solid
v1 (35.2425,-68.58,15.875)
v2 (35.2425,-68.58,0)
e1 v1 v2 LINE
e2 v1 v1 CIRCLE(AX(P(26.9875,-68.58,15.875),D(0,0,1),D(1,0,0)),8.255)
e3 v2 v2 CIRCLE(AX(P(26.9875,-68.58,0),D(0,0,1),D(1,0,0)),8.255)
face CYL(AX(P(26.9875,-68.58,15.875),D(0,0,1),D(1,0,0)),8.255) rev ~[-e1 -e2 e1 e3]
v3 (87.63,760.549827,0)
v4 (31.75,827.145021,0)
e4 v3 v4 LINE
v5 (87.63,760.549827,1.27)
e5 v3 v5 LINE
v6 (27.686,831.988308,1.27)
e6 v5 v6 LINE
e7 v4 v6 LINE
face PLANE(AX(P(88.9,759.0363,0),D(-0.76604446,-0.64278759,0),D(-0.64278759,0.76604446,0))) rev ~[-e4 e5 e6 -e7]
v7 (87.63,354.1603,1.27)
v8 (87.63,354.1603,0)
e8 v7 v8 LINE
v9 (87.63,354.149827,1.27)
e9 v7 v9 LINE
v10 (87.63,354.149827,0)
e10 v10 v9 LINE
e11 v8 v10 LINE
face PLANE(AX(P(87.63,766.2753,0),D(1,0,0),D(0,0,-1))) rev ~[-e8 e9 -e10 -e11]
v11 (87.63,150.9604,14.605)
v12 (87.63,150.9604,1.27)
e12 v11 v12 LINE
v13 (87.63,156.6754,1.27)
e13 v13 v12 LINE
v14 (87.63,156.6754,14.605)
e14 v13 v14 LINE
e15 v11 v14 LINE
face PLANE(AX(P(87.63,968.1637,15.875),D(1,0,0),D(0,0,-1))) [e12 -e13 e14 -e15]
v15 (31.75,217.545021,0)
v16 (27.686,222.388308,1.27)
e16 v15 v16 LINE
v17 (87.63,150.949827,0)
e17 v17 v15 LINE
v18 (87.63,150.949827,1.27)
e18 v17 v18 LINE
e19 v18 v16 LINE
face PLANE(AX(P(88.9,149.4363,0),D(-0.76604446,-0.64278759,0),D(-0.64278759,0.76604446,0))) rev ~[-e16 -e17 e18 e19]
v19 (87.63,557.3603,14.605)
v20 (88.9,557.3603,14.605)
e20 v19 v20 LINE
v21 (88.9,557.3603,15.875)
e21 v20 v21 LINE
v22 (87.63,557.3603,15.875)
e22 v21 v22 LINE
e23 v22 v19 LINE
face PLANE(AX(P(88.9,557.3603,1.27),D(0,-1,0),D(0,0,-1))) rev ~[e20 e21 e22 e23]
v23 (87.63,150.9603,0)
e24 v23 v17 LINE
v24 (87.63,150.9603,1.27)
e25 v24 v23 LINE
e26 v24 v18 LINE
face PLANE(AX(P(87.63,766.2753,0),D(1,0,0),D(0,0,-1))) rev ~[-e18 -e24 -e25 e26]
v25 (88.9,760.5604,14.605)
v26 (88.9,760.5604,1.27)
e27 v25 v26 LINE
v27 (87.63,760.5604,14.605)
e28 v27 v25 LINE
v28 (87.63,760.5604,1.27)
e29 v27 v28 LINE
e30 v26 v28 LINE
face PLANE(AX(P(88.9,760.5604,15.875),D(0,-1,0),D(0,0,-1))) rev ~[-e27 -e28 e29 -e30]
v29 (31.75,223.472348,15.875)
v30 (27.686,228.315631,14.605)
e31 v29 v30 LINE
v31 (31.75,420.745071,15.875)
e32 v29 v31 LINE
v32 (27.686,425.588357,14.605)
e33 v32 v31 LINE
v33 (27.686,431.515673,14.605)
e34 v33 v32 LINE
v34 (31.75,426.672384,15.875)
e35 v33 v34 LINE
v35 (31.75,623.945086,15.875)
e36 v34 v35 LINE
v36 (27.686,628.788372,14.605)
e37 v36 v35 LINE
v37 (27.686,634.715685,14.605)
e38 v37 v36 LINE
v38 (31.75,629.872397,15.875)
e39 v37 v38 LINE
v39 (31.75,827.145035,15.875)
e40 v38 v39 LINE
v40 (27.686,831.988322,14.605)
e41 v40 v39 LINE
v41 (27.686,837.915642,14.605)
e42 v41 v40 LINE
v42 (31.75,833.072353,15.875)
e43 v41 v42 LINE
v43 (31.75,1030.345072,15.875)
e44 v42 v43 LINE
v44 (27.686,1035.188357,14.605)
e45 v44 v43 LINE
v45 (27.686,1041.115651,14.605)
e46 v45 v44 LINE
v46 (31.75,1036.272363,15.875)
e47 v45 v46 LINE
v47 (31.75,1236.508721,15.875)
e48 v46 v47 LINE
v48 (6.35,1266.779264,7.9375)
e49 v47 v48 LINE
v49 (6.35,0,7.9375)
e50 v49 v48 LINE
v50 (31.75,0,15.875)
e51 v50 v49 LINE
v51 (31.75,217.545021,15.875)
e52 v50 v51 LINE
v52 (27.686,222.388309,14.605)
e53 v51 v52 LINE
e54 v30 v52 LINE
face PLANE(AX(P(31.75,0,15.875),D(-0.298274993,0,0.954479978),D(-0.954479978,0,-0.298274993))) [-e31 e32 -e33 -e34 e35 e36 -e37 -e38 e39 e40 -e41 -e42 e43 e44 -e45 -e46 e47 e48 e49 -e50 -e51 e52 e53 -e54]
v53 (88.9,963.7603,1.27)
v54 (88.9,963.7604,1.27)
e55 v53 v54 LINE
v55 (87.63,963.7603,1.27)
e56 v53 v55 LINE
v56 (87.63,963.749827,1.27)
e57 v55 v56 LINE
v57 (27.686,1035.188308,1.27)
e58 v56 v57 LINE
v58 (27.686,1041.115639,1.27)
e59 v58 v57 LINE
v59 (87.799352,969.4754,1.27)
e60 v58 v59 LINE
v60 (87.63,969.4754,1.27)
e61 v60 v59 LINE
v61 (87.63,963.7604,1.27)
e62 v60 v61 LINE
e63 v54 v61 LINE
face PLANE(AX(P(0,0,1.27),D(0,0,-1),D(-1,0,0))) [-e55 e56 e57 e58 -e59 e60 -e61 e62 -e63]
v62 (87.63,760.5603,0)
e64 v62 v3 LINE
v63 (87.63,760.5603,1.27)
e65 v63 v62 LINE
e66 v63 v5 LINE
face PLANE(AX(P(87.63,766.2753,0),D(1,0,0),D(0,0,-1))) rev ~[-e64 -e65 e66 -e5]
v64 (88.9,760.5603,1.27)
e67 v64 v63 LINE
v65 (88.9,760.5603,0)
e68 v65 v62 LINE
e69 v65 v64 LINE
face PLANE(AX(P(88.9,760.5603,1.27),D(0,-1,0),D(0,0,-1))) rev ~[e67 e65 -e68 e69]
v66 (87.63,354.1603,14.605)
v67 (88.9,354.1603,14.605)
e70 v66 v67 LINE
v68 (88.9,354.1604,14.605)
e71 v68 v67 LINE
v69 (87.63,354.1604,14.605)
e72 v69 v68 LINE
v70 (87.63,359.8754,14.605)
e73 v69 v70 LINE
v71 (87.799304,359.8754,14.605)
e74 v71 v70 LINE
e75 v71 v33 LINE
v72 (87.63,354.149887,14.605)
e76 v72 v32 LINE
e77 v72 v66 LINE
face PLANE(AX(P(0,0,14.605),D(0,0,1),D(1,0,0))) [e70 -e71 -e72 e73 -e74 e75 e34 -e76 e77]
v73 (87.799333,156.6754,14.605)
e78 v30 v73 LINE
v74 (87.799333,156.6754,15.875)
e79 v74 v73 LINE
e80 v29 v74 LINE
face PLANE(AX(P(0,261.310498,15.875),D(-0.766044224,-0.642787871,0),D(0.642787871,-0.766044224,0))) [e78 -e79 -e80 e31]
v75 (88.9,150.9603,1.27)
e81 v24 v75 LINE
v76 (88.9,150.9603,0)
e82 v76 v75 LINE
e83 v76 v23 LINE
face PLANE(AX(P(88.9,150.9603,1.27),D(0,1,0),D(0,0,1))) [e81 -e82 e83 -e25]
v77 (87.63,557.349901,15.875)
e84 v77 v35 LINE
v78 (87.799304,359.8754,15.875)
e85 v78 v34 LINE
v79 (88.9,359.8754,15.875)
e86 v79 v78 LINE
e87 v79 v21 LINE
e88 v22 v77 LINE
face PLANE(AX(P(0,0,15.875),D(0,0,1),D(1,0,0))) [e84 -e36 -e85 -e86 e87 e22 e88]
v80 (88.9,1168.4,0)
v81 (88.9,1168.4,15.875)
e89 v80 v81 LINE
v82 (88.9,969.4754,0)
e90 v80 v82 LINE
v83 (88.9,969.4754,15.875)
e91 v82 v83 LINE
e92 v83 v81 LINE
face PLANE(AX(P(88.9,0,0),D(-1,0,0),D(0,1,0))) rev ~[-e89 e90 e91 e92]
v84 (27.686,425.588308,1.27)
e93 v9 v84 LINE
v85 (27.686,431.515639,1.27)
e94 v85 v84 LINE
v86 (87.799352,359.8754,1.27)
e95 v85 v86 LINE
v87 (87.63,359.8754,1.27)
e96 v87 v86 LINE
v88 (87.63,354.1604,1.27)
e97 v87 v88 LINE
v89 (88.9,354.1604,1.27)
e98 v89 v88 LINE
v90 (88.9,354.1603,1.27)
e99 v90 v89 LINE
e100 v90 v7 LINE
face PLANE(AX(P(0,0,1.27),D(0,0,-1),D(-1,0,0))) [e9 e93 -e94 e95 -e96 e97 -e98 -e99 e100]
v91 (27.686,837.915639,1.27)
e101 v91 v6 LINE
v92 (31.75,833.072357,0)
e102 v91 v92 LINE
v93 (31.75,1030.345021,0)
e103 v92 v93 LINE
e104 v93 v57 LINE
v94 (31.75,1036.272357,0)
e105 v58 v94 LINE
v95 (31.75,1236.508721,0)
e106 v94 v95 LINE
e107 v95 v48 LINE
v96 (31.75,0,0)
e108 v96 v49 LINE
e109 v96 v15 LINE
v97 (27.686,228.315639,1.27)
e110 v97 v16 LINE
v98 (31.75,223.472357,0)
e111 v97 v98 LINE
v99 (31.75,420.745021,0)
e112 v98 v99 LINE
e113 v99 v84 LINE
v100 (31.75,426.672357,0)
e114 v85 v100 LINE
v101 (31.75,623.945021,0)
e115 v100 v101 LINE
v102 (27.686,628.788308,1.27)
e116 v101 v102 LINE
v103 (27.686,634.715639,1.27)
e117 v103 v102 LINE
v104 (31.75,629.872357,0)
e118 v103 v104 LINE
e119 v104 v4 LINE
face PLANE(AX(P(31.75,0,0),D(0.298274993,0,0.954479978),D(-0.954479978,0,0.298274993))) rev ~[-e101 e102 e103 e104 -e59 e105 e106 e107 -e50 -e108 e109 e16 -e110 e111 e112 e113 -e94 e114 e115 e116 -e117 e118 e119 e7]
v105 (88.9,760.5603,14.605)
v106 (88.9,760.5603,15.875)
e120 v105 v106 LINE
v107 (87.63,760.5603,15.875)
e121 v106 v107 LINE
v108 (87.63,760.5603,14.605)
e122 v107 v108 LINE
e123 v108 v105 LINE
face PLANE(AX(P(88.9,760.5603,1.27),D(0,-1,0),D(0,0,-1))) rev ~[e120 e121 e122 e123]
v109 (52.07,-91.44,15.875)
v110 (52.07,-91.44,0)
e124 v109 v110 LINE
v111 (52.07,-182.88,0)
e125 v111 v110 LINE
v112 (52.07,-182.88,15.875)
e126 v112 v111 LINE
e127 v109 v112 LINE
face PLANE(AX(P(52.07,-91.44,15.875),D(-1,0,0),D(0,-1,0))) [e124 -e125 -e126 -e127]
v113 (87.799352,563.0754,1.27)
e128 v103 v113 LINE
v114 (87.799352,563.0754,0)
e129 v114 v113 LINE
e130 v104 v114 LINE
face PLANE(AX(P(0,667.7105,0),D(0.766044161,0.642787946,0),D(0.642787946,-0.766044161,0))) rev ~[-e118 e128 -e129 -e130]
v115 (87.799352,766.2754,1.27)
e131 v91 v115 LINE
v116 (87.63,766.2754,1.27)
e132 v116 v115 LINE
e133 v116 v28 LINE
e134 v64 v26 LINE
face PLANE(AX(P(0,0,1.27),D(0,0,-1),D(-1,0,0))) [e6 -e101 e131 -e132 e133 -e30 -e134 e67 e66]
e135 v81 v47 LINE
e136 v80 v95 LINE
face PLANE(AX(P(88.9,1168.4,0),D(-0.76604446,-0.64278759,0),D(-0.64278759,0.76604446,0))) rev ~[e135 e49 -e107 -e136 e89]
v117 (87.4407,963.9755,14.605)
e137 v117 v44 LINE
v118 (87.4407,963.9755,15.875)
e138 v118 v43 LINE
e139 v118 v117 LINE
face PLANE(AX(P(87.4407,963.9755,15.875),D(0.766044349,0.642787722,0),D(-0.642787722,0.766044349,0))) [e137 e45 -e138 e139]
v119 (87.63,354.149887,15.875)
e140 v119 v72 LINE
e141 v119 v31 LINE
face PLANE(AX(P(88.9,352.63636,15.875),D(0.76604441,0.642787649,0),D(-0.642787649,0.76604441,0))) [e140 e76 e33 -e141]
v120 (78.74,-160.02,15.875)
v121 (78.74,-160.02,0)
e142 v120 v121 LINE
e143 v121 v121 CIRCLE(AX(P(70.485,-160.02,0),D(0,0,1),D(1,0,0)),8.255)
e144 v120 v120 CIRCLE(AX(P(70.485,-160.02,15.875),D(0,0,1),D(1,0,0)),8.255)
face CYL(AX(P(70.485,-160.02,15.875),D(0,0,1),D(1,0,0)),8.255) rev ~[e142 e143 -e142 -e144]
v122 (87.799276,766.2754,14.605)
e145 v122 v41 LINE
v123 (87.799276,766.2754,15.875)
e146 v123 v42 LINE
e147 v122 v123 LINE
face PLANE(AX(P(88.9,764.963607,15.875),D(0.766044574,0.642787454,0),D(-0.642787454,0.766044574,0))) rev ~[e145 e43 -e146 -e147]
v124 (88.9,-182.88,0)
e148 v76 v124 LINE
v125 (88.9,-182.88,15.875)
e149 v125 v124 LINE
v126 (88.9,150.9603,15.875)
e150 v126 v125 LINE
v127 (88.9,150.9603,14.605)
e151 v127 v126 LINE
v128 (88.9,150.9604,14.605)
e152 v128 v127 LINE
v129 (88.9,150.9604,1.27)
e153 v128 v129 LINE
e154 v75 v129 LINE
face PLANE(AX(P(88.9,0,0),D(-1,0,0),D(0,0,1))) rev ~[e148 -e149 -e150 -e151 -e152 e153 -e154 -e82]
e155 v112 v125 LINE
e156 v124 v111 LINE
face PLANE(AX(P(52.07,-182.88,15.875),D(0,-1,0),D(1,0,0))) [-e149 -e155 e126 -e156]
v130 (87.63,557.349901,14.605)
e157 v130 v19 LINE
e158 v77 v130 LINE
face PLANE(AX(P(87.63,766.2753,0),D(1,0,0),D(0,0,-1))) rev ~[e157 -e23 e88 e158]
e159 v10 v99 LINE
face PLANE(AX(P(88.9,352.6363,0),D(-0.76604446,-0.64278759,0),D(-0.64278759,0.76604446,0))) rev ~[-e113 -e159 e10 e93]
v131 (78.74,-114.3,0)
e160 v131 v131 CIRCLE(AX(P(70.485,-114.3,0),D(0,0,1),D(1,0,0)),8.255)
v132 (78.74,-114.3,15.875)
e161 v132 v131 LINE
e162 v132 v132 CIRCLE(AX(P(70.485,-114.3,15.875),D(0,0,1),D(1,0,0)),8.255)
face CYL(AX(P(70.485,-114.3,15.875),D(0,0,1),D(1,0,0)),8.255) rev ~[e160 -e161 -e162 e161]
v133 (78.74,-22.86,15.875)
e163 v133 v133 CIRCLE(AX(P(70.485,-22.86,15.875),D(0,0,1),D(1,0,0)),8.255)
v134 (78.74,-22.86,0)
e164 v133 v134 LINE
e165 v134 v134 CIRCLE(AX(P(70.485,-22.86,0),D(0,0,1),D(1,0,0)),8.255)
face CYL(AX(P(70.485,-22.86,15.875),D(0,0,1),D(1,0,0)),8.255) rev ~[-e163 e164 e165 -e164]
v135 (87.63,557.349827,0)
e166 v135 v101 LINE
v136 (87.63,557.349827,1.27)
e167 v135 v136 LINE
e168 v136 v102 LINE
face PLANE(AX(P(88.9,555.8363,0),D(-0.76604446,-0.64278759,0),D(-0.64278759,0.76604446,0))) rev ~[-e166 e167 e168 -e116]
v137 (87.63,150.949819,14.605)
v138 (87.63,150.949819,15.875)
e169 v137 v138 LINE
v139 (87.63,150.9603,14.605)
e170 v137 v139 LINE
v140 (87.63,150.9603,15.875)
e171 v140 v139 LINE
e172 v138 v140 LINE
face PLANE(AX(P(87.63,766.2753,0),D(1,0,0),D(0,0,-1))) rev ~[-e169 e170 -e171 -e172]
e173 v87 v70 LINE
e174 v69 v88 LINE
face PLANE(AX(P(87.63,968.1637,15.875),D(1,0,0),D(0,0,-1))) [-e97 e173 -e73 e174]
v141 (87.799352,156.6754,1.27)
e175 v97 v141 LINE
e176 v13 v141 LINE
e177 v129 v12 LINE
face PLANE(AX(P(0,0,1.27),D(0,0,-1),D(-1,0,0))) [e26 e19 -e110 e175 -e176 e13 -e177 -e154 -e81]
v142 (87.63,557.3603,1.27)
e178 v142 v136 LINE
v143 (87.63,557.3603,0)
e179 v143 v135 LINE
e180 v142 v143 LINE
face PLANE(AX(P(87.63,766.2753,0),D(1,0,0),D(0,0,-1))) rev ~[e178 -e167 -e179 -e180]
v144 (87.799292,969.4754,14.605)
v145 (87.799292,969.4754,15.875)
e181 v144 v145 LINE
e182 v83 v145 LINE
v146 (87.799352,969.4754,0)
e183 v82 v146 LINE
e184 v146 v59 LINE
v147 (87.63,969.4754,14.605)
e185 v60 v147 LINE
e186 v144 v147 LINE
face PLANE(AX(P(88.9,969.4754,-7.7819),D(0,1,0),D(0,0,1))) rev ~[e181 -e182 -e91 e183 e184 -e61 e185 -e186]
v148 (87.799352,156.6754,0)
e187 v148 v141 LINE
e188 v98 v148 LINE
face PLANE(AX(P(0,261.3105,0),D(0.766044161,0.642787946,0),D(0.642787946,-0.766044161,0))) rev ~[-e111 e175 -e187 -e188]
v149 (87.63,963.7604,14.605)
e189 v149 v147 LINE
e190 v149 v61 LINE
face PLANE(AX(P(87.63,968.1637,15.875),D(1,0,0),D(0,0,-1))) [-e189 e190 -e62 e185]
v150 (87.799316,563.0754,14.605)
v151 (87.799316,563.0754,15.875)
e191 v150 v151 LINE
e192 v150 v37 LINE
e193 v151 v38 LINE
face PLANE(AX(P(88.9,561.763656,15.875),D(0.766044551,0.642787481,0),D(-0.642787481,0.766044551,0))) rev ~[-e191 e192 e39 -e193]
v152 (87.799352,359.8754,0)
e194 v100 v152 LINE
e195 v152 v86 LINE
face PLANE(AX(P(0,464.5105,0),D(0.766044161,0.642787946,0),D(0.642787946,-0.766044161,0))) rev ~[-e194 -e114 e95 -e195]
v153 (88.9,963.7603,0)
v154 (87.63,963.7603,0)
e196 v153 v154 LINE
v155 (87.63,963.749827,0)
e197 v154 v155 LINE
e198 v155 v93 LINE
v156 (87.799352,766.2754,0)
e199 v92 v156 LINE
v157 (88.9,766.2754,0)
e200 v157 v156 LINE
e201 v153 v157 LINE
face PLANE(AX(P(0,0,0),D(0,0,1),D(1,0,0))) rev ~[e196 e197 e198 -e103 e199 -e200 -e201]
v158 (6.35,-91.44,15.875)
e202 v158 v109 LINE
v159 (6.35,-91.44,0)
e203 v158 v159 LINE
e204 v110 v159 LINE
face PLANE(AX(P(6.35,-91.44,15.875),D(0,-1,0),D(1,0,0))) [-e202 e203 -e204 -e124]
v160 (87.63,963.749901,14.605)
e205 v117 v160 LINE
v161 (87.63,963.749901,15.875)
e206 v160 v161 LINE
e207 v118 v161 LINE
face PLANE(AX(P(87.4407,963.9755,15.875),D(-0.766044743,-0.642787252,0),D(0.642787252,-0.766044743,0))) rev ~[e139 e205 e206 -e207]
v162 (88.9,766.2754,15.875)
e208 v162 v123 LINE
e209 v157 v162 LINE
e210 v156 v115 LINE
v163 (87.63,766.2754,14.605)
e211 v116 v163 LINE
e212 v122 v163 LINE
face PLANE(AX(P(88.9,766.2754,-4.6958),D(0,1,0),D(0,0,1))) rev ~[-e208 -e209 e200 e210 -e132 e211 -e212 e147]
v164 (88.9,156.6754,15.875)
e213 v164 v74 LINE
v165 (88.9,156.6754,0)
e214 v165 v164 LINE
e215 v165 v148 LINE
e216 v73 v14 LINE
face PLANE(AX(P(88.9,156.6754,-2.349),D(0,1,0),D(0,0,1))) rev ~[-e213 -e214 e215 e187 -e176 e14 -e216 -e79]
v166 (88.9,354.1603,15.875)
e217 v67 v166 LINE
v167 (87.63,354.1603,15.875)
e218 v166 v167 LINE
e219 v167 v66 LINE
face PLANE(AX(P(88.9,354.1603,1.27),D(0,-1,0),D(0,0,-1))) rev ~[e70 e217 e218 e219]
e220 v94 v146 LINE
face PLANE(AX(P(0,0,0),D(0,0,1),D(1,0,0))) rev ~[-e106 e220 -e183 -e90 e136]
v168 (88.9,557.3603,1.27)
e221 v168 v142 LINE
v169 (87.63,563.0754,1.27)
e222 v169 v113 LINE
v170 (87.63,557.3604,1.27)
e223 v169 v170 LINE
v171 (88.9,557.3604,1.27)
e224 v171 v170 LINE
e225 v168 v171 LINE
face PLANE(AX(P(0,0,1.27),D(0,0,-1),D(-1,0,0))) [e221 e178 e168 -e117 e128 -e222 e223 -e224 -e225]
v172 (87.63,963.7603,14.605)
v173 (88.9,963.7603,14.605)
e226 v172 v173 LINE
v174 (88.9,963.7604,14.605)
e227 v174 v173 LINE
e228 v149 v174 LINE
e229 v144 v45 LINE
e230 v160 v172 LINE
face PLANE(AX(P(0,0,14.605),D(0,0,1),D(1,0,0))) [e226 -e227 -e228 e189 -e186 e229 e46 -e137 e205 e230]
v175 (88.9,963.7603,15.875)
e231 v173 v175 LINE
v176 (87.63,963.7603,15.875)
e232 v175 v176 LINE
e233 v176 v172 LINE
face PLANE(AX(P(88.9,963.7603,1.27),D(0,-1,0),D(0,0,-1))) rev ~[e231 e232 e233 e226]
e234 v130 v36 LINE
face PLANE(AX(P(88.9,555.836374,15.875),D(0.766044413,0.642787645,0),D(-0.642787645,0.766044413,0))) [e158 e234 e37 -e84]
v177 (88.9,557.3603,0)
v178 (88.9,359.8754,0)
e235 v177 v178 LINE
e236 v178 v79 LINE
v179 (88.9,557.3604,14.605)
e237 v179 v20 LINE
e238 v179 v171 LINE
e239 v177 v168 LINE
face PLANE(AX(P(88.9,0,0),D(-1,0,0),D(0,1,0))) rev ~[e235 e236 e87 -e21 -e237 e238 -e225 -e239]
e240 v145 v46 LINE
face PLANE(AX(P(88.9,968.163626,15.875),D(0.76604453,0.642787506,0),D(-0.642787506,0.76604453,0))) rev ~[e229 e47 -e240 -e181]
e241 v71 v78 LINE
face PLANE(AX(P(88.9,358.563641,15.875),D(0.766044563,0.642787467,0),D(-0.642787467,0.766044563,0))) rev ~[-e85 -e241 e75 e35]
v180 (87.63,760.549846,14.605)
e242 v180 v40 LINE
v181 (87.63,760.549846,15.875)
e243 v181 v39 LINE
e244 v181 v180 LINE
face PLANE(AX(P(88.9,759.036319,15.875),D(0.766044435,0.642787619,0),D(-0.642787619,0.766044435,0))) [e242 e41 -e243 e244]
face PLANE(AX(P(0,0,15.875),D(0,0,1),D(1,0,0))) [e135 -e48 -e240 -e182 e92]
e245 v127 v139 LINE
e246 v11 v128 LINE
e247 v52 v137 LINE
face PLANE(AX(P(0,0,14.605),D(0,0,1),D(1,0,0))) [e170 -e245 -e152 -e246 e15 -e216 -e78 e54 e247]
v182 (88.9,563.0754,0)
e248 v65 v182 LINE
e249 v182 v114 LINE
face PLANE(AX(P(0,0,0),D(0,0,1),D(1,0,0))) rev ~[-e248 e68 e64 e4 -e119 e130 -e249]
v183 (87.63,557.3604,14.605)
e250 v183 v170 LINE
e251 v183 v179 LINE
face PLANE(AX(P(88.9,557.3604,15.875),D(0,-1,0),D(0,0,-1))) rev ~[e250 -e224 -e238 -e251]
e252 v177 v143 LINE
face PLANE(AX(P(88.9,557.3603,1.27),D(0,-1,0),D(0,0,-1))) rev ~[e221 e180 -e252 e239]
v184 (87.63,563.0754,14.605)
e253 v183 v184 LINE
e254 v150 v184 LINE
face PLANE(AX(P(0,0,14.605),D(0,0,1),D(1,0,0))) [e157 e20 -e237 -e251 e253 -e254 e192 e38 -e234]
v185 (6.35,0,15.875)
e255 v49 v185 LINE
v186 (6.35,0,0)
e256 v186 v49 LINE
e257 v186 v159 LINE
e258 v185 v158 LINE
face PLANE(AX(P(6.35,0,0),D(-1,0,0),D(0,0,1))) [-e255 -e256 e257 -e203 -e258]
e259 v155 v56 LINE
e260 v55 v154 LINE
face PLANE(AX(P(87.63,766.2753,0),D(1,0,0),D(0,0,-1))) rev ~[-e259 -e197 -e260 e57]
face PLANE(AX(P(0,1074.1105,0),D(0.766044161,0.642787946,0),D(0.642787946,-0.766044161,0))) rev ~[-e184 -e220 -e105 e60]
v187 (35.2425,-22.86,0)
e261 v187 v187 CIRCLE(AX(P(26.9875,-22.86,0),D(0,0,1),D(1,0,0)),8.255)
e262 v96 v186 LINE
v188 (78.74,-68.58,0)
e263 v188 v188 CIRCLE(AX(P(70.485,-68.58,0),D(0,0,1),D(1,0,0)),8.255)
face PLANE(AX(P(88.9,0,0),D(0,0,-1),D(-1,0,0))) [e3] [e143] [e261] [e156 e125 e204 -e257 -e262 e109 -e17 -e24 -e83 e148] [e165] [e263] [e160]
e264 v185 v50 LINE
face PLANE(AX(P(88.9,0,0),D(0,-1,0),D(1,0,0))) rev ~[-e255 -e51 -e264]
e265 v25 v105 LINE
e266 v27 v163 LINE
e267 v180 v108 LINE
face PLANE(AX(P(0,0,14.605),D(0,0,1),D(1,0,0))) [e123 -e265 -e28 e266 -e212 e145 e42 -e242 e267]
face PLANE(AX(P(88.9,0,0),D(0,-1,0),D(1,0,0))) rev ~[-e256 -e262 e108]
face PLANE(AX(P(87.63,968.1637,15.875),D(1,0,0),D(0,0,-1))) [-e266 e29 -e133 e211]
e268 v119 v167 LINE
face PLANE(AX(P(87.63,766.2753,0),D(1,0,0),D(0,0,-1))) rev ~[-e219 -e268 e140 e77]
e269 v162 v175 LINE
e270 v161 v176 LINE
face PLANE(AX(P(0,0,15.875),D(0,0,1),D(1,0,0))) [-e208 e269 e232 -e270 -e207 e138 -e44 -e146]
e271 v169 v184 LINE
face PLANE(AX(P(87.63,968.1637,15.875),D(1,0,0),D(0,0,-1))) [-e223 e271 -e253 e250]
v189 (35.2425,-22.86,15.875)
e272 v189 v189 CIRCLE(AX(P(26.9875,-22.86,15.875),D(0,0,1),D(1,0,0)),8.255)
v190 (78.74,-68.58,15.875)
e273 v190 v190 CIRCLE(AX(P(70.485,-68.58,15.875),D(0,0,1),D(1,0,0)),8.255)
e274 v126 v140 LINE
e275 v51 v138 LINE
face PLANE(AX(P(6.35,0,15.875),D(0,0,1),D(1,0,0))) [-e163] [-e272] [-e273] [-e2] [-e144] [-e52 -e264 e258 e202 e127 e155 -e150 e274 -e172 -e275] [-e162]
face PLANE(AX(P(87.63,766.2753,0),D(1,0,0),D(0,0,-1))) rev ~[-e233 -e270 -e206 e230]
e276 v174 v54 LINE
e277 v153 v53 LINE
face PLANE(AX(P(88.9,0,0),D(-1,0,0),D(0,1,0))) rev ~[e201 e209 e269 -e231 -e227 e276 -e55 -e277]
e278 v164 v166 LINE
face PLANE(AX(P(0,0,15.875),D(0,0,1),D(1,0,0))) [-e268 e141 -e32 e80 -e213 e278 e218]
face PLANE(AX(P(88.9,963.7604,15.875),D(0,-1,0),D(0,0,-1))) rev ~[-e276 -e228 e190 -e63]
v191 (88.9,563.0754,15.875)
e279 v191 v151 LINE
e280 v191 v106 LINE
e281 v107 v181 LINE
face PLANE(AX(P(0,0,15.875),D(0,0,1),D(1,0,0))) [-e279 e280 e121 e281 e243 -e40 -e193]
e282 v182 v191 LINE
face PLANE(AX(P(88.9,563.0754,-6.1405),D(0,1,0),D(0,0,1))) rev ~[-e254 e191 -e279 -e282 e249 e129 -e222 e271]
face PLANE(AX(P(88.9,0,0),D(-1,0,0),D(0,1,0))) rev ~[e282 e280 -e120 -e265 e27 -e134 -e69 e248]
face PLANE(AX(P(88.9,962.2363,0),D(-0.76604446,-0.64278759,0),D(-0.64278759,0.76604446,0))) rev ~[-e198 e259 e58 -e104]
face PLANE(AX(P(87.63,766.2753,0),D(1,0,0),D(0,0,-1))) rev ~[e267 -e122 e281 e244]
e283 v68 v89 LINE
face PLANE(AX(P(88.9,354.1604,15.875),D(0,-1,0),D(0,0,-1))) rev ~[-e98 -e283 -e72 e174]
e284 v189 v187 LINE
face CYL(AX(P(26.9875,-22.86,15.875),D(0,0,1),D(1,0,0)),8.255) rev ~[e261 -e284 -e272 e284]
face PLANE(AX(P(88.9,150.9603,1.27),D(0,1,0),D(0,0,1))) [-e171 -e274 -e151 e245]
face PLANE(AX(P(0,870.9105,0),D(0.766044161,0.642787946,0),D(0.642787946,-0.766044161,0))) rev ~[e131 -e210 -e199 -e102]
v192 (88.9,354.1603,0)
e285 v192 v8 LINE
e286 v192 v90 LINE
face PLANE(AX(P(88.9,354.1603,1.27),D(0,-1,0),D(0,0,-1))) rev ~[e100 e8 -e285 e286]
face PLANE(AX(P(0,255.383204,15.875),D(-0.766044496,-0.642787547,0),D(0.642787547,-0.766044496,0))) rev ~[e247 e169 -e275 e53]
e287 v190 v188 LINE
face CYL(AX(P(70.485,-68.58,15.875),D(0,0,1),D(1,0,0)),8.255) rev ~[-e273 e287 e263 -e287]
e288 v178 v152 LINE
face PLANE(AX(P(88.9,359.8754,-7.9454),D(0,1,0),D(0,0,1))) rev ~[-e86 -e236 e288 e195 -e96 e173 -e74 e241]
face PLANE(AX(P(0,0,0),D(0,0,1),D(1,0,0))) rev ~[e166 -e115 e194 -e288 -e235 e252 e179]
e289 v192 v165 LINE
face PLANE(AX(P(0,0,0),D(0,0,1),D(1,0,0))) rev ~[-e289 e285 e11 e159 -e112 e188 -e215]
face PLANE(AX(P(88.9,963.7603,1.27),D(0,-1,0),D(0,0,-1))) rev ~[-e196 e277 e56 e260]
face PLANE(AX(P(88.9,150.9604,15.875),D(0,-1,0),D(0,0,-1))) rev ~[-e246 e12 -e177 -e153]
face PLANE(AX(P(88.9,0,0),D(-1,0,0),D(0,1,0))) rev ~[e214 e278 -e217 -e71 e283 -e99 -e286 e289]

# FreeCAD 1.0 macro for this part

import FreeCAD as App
import Part
import Sketcher
Q = App.Units.Quantity

doc = App.newDocument("Part")
body = doc.addObject("PartDesign::Body", "Body")

sketch1 = body.newObject("Sketcher::SketchObject", "Sketch")
sketch1.AttachmentSupport = (doc.getObject("XY_Plane"), [""])
sketch1.MapMode = "FlatFace"
sketch1.addGeometry([
    Part.LineSegment(App.Vector(0, 0, 0), App.Vector(88.9, 0, 0)),
    Part.LineSegment(App.Vector(88.9, 0, 0), App.Vector(88.9, 1168.4, 0)),
    Part.LineSegment(App.Vector(88.9, 1168.4, 0), App.Vector(0, 1274.3469, 0)),
    Part.LineSegment(App.Vector(0, 1274.3469, 0), App.Vector(0, 0, 0)),
], False)
sketch1.addConstraint([
    Sketcher.Constraint("Coincident", 0, 2, 1, 1),
    Sketcher.Constraint("Coincident", 1, 2, 2, 1),
    Sketcher.Constraint("Coincident", 2, 2, 3, 1),
    Sketcher.Constraint("Coincident", 3, 2, 0, 1),
    Sketcher.Constraint("Horizontal", 0),
    Sketcher.Constraint("Vertical", 1),
    Sketcher.Constraint("Vertical", 3),
    Sketcher.Constraint("Coincident", 3, 2, -1, 1),
    Sketcher.Constraint("DistanceY", 1, 1, 1, 2, Q("46 in")),
    Sketcher.Constraint("DistanceX", 0, 1, 0, 2, Q("3.5 in")),
    Sketcher.Constraint("Angle", 2, Q("130 deg")),
])
pad1 = body.newObject("PartDesign::Pad", "Pad")
pad1.Profile = sketch1
pad1.Length = Q("0.625 in")

sketch2 = body.newObject("Sketcher::SketchObject", "Sketch001")
sketch2.AttachmentSupport = (doc.getObject("XY_Plane"), [""])
sketch2.MapMode = "FlatFace"
sketch2.AttachmentOffset = App.Placement(App.Vector(0, 0, 0.625 * 25.4), App.Rotation())
sketch2.addGeometry([
    Part.LineSegment(App.Vector(0, 255.383204, 0), App.Vector(88.9, 149.436292, 0)),
    Part.LineSegment(App.Vector(88.9, 149.436292, 0), App.Vector(88.9, 155.363677, 0)),
    Part.LineSegment(App.Vector(88.9, 155.363677, 0), App.Vector(0, 261.310498, 0)),
    Part.LineSegment(App.Vector(0, 261.310498, 0), App.Vector(0, 255.383204, 0)),
    Part.LineSegment(App.Vector(0, 458.583243, 0), App.Vector(88.9, 352.63636, 0)),
    Part.LineSegment(App.Vector(88.9, 352.63636, 0), App.Vector(88.9, 358.563641, 0)),
    Part.LineSegment(App.Vector(88.9, 358.563641, 0), App.Vector(0, 464.510575, 0)),
    Part.LineSegment(App.Vector(0, 464.510575, 0), App.Vector(0, 458.583243, 0)),
    Part.LineSegment(App.Vector(0, 661.783259, 0), App.Vector(88.9, 555.836374, 0)),
    Part.LineSegment(App.Vector(88.9, 555.836374, 0), App.Vector(88.9, 561.763656, 0)),
    Part.LineSegment(App.Vector(88.9, 561.763656, 0), App.Vector(0, 667.710586, 0)),
    Part.LineSegment(App.Vector(0, 667.710586, 0), App.Vector(0, 661.783259, 0)),
    Part.LineSegment(App.Vector(0, 864.983211, 0), App.Vector(88.9, 759.036319, 0)),
    Part.LineSegment(App.Vector(88.9, 759.036319, 0), App.Vector(88.9, 764.963607, 0)),
    Part.LineSegment(App.Vector(88.9, 764.963607, 0), App.Vector(0, 870.910545, 0)),
    Part.LineSegment(App.Vector(0, 870.910545, 0), App.Vector(0, 864.983211, 0)),
    Part.LineSegment(App.Vector(0, 1068.183237, 0), App.Vector(87.4407, 963.9755, 0)),
    Part.LineSegment(App.Vector(87.4407, 963.9755, 0), App.Vector(88.9, 962.236372, 0)),
    Part.LineSegment(App.Vector(88.9, 962.236372, 0), App.Vector(88.9, 968.163626, 0)),
    Part.LineSegment(App.Vector(88.9, 968.163626, 0), App.Vector(0, 1074.11055, 0)),
    Part.LineSegment(App.Vector(0, 1074.11055, 0), App.Vector(0, 1068.183237, 0)),
], False)
sketch2.addConstraint([
    Sketcher.Constraint("Coincident", 0, 2, 1, 1),
    Sketcher.Constraint("Coincident", 1, 2, 2, 1),
    Sketcher.Constraint("Coincident", 2, 2, 3, 1),
    Sketcher.Constraint("Coincident", 3, 2, 0, 1),
    Sketcher.Constraint("Coincident", 4, 2, 5, 1),
    Sketcher.Constraint("Coincident", 5, 2, 6, 1),
    Sketcher.Constraint("Coincident", 6, 2, 7, 1),
    Sketcher.Constraint("Coincident", 7, 2, 4, 1),
    Sketcher.Constraint("Coincident", 8, 2, 9, 1),
    Sketcher.Constraint("Coincident", 9, 2, 10, 1),
    Sketcher.Constraint("Coincident", 10, 2, 11, 1),
    Sketcher.Constraint("Coincident", 11, 2, 8, 1),
    Sketcher.Constraint("Coincident", 12, 2, 13, 1),
    Sketcher.Constraint("Coincident", 13, 2, 14, 1),
    Sketcher.Constraint("Coincident", 14, 2, 15, 1),
    Sketcher.Constraint("Coincident", 15, 2, 12, 1),
    Sketcher.Constraint("Coincident", 16, 2, 17, 1),
    Sketcher.Constraint("Coincident", 17, 2, 18, 1),
    Sketcher.Constraint("Coincident", 18, 2, 19, 1),
    Sketcher.Constraint("Coincident", 19, 2, 20, 1),
    Sketcher.Constraint("Coincident", 20, 2, 16, 1),
    Sketcher.Constraint("Vertical", 1),
    Sketcher.Constraint("Vertical", 3),
    Sketcher.Constraint("Vertical", 5),
    Sketcher.Constraint("Vertical", 7),
    Sketcher.Constraint("Vertical", 9),
    Sketcher.Constraint("Vertical", 11),
    Sketcher.Constraint("Vertical", 13),
    Sketcher.Constraint("Vertical", 15),
    Sketcher.Constraint("Vertical", 18),
    Sketcher.Constraint("Vertical", 20),
    Sketcher.Constraint("PointOnObject", 2, 2, -2),
    Sketcher.Constraint("PointOnObject", 6, 2, -2),
    Sketcher.Constraint("PointOnObject", 10, 2, -2),
    Sketcher.Constraint("PointOnObject", 14, 2, -2),
    Sketcher.Constraint("PointOnObject", 19, 2, -2),
    Sketcher.Constraint("Parallel", 0, 2),
    Sketcher.Constraint("Parallel", 2, 4),
    Sketcher.Constraint("Parallel", 4, 6),
    Sketcher.Constraint("Parallel", 6, 8),
    Sketcher.Constraint("Parallel", 8, 10),
    Sketcher.Constraint("Parallel", 10, 12),
    Sketcher.Constraint("Parallel", 12, 14),
    Sketcher.Constraint("Parallel", 14, 16),
    Sketcher.Constraint("Parallel", 16, 17),
    Sketcher.Constraint("Parallel", 17, 19),
    Sketcher.Constraint("Vertical", 1, 2, 4, 2),
    Sketcher.Constraint("Vertical", 5, 2, 8, 2),
    Sketcher.Constraint("Vertical", 9, 2, 12, 2),
    Sketcher.Constraint("Vertical", 13, 2, 17, 2),
    Sketcher.Constraint("Equal", 3, 5),
    Sketcher.Constraint("Equal", 7, 9),
    Sketcher.Constraint("Equal", 11, 13),
    Sketcher.Constraint("Equal", 15, 18),
    Sketcher.Constraint("DistanceX", -1, 1, 0, 2, Q("3.5 in")),
    Sketcher.Constraint("Angle", 0, Q("-50 deg")),
    Sketcher.Constraint("DistanceY", 0, 2, 4, 2, Q("8 in")),
    Sketcher.Constraint("DistanceY", 4, 2, 8, 2, Q("8 in")),
    Sketcher.Constraint("DistanceY", 8, 2, 12, 2, Q("8 in")),
    Sketcher.Constraint("DistanceY", 12, 2, 17, 2, Q("8 in")),
    Sketcher.Constraint("DistanceY", 1, 1, 1, 2, 5.9274),
    Sketcher.Constraint("DistanceY", -1, 1, 16, 2, Q("37.9518 in")),
    Sketcher.Constraint("Distance", 16, 136.0336),
])
pocket1 = body.newObject("PartDesign::Pocket", "Pocket")
pocket1.Profile = sketch2
pocket1.Length = Q("0.05 in")

sketch3 = body.newObject("Sketcher::SketchObject", "Sketch002")
sketch3.AttachmentSupport = (doc.getObject("XY_Plane"), [""])
sketch3.MapMode = "FlatFace"
sketch3.addGeometry([
    Part.LineSegment(App.Vector(88.9, 155.3637, 0), App.Vector(88.9, 149.4363, 0)),
    Part.LineSegment(App.Vector(88.9, 149.4363, 0), App.Vector(0, 255.3832, 0)),
    Part.LineSegment(App.Vector(0, 255.3832, 0), App.Vector(0, 261.3105, 0)),
    Part.LineSegment(App.Vector(0, 261.3105, 0), App.Vector(88.9, 155.3637, 0)),
    Part.LineSegment(App.Vector(88.9, 358.5637, 0), App.Vector(88.9, 352.6363, 0)),
    Part.LineSegment(App.Vector(88.9, 352.6363, 0), App.Vector(0, 458.5832, 0)),
    Part.LineSegment(App.Vector(0, 458.5832, 0), App.Vector(0, 464.5105, 0)),
    Part.LineSegment(App.Vector(0, 464.5105, 0), App.Vector(88.9, 358.5637, 0)),
    Part.LineSegment(App.Vector(88.9, 561.7637, 0), App.Vector(88.9, 555.8363, 0)),
    Part.LineSegment(App.Vector(88.9, 555.8363, 0), App.Vector(0, 661.7832, 0)),
    Part.LineSegment(App.Vector(0, 661.7832, 0), App.Vector(0, 667.7105, 0)),
    Part.LineSegment(App.Vector(0, 667.7105, 0), App.Vector(88.9, 561.7637, 0)),
    Part.LineSegment(App.Vector(88.9, 764.9637, 0), App.Vector(88.9, 759.0363, 0)),
    Part.LineSegment(App.Vector(88.9, 759.0363, 0), App.Vector(0, 864.9832, 0)),
    Part.LineSegment(App.Vector(0, 864.9832, 0), App.Vector(0, 870.9105, 0)),
    Part.LineSegment(App.Vector(0, 870.9105, 0), App.Vector(88.9, 764.9637, 0)),
    Part.LineSegment(App.Vector(88.9, 968.1637, 0), App.Vector(88.9, 962.2363, 0)),
    Part.LineSegment(App.Vector(88.9, 962.2363, 0), App.Vector(0, 1068.1832, 0)),
    Part.LineSegment(App.Vector(0, 1068.1832, 0), App.Vector(0, 1074.1105, 0)),
    Part.LineSegment(App.Vector(0, 1074.1105, 0), App.Vector(88.9, 968.1637, 0)),
], False)
sketch3.addConstraint([
    Sketcher.Constraint("Coincident", 0, 2, 1, 1),
    Sketcher.Constraint("Coincident", 1, 2, 2, 1),
    Sketcher.Constraint("Coincident", 2, 2, 3, 1),
    Sketcher.Constraint("Coincident", 3, 2, 0, 1),
    Sketcher.Constraint("Coincident", 4, 2, 5, 1),
    Sketcher.Constraint("Coincident", 5, 2, 6, 1),
    Sketcher.Constraint("Coincident", 6, 2, 7, 1),
    Sketcher.Constraint("Coincident", 7, 2, 4, 1),
    Sketcher.Constraint("Coincident", 8, 2, 9, 1),
    Sketcher.Constraint("Coincident", 9, 2, 10, 1),
    Sketcher.Constraint("Coincident", 10, 2, 11, 1),
    Sketcher.Constraint("Coincident", 11, 2, 8, 1),
    Sketcher.Constraint("Coincident", 12, 2, 13, 1),
    Sketcher.Constraint("Coincident", 13, 2, 14, 1),
    Sketcher.Constraint("Coincident", 14, 2, 15, 1),
    Sketcher.Constraint("Coincident", 15, 2, 12, 1),
    Sketcher.Constraint("Coincident", 16, 2, 17, 1),
    Sketcher.Constraint("Coincident", 17, 2, 18, 1),
    Sketcher.Constraint("Coincident", 18, 2, 19, 1),
    Sketcher.Constraint("Coincident", 19, 2, 16, 1),
    Sketcher.Constraint("Vertical", 0),
    Sketcher.Constraint("Vertical", 2),
    Sketcher.Constraint("Vertical", 4),
    Sketcher.Constraint("Vertical", 6),
    Sketcher.Constraint("Vertical", 8),
    Sketcher.Constraint("Vertical", 10),
    Sketcher.Constraint("Vertical", 12),
    Sketcher.Constraint("Vertical", 14),
    Sketcher.Constraint("Vertical", 16),
    Sketcher.Constraint("Vertical", 18),
    Sketcher.Constraint("PointOnObject", 1, 2, -2),
    Sketcher.Constraint("PointOnObject", 5, 2, -2),
    Sketcher.Constraint("PointOnObject", 9, 2, -2),
    Sketcher.Constraint("PointOnObject", 13, 2, -2),
    Sketcher.Constraint("PointOnObject", 17, 2, -2),
    Sketcher.Constraint("Parallel", 1, 3),
    Sketcher.Constraint("Parallel", 3, 5),
    Sketcher.Constraint("Parallel", 5, 7),
    Sketcher.Constraint("Parallel", 7, 9),
    Sketcher.Constraint("Parallel", 9, 11),
    Sketcher.Constraint("Parallel", 11, 13),
    Sketcher.Constraint("Parallel", 13, 15),
    Sketcher.Constraint("Parallel", 15, 17),
    Sketcher.Constraint("Parallel", 17, 19),
    Sketcher.Constraint("Vertical", 3, 2, 4, 2),
    Sketcher.Constraint("Vertical", 7, 2, 8, 2),
    Sketcher.Constraint("Vertical", 11, 2, 12, 2),
    Sketcher.Constraint("Vertical", 15, 2, 16, 2),
    Sketcher.Constraint("Equal", 2, 4),
    Sketcher.Constraint("Equal", 6, 8),
    Sketcher.Constraint("Equal", 10, 12),
    Sketcher.Constraint("Equal", 14, 16),
    Sketcher.Constraint("Angle", 1, Q("130 deg")),
    Sketcher.Constraint("DistanceY", 0, 2, 4, 2, Q("8 in")),
    Sketcher.Constraint("DistanceY", 4, 2, 8, 2, Q("8 in")),
    Sketcher.Constraint("DistanceY", 8, 2, 12, 2, Q("8 in")),
    Sketcher.Constraint("DistanceY", 12, 2, 16, 2, Q("8 in")),
    Sketcher.Constraint("DistanceX", -1, 1, 0, 2, Q("3.5 in")),
    Sketcher.Constraint("DistanceY", 0, 2, 0, 1, 5.9274),
    Sketcher.Constraint("DistanceY", -1, 1, 0, 2, 149.4363),
])
pocket2 = body.newObject("PartDesign::Pocket", "Pocket001")
pocket2.Profile = sketch3
pocket2.Length = Q("0.05 in")
pocket2.Reversed = True

sketch4 = body.newObject("Sketcher::SketchObject", "Sketch003")
sketch4.AttachmentSupport = (doc.getObject("YZ_Plane"), [""])
sketch4.MapMode = "FlatFace"
sketch4.AttachmentOffset = App.Placement(App.Vector(0, 0, 3.5 * 25.4), App.Rotation())
sketch4.addGeometry([
    Part.LineSegment(App.Vector(969.4754, -7.7819, 0), App.Vector(969.4754, 15.875, 0)),
    Part.LineSegment(App.Vector(969.4754, 15.875, 0), App.Vector(963.7604, 15.875, 0)),
    Part.LineSegment(App.Vector(963.7604, 15.875, 0), App.Vector(963.7604, -7.7819, 0)),
    Part.LineSegment(App.Vector(963.7604, -7.7819, 0), App.Vector(969.4754, -7.7819, 0)),
    Part.LineSegment(App.Vector(156.6754, -2.349, 0), App.Vector(156.6754, 15.875, 0)),
    Part.LineSegment(App.Vector(156.6754, 15.875, 0), App.Vector(150.9604, 15.875, 0)),
    Part.LineSegment(App.Vector(150.9604, 15.875, 0), App.Vector(150.9604, -2.349, 0)),
    Part.LineSegment(App.Vector(150.9604, -2.349, 0), App.Vector(156.6754, -2.349, 0)),
    Part.LineSegment(App.Vector(359.8754, 15.875, 0), App.Vector(354.1604, 15.875, 0)),
    Part.LineSegment(App.Vector(354.1604, 15.875, 0), App.Vector(354.1604, -7.9454, 0)),
    Part.LineSegment(App.Vector(354.1604, -7.9454, 0), App.Vector(359.8754, -7.9454, 0)),
    Part.LineSegment(App.Vector(359.8754, -7.9454, 0), App.Vector(359.8754, 15.875, 0)),
    Part.LineSegment(App.Vector(563.0754, -6.1405, 0), App.Vector(563.0754, 15.875, 0)),
    Part.LineSegment(App.Vector(563.0754, 15.875, 0), App.Vector(557.3604, 15.875, 0)),
    Part.LineSegment(App.Vector(557.3604, 15.875, 0), App.Vector(557.3604, -6.1405, 0)),
    Part.LineSegment(App.Vector(557.3604, -6.1405, 0), App.Vector(563.0754, -6.1405, 0)),
    Part.LineSegment(App.Vector(766.2754, -4.6958, 0), App.Vector(766.2754, 15.875, 0)),
    Part.LineSegment(App.Vector(766.2754, 15.875, 0), App.Vector(760.5604, 15.875, 0)),
    Part.LineSegment(App.Vector(760.5604, 15.875, 0), App.Vector(760.5604, -4.6958, 0)),
    Part.LineSegment(App.Vector(760.5604, -4.6958, 0), App.Vector(766.2754, -4.6958, 0)),
], False)
sketch4.addConstraint([
    Sketcher.Constraint("Coincident", 0, 2, 1, 1),
    Sketcher.Constraint("Coincident", 1, 2, 2, 1),
    Sketcher.Constraint("Coincident", 2, 2, 3, 1),
    Sketcher.Constraint("Coincident", 3, 2, 0, 1),
    Sketcher.Constraint("Coincident", 4, 2, 5, 1),
    Sketcher.Constraint("Coincident", 5, 2, 6, 1),
    Sketcher.Constraint("Coincident", 6, 2, 7, 1),
    Sketcher.Constraint("Coincident", 7, 2, 4, 1),
    Sketcher.Constraint("Coincident", 8, 2, 9, 1),
    Sketcher.Constraint("Coincident", 9, 2, 10, 1),
    Sketcher.Constraint("Coincident", 10, 2, 11, 1),
    Sketcher.Constraint("Coincident", 11, 2, 8, 1),
    Sketcher.Constraint("Coincident", 12, 2, 13, 1),
    Sketcher.Constraint("Coincident", 13, 2, 14, 1),
    Sketcher.Constraint("Coincident", 14, 2, 15, 1),
    Sketcher.Constraint("Coincident", 15, 2, 12, 1),
    Sketcher.Constraint("Coincident", 16, 2, 17, 1),
    Sketcher.Constraint("Coincident", 17, 2, 18, 1),
    Sketcher.Constraint("Coincident", 18, 2, 19, 1),
    Sketcher.Constraint("Coincident", 19, 2, 16, 1),
    Sketcher.Constraint("Vertical", 0),
    Sketcher.Constraint("Horizontal", 1),
    Sketcher.Constraint("Vertical", 2),
    Sketcher.Constraint("Horizontal", 3),
    Sketcher.Constraint("Vertical", 4),
    Sketcher.Constraint("Horizontal", 5),
    Sketcher.Constraint("Vertical", 6),
    Sketcher.Constraint("Horizontal", 7),
    Sketcher.Constraint("Horizontal", 8),
    Sketcher.Constraint("Vertical", 9),
    Sketcher.Constraint("Horizontal", 10),
    Sketcher.Constraint("Vertical", 11),
    Sketcher.Constraint("Vertical", 12),
    Sketcher.Constraint("Horizontal", 13),
    Sketcher.Constraint("Vertical", 14),
    Sketcher.Constraint("Horizontal", 15),
    Sketcher.Constraint("Vertical", 16),
    Sketcher.Constraint("Horizontal", 17),
    Sketcher.Constraint("Vertical", 18),
    Sketcher.Constraint("Horizontal", 19),
    Sketcher.Constraint("Horizontal", 1, 2, 4, 2),
    Sketcher.Constraint("Horizontal", 5, 2, 8, 2),
    Sketcher.Constraint("Horizontal", 11, 2, 12, 2),
    Sketcher.Constraint("Horizontal", 13, 2, 16, 2),
    Sketcher.Constraint("Equal", 3, 5),
    Sketcher.Constraint("Equal", 7, 8),
    Sketcher.Constraint("Equal", 10, 13),
    Sketcher.Constraint("Equal", 15, 17),
    Sketcher.Constraint("DistanceX", 1, 2, 1, 1, Q("0.225 in")),
    Sketcher.Constraint("DistanceX", 4, 2, 0, 2, Q("32 in")),
    Sketcher.Constraint("DistanceX", 5, 2, 8, 2, Q("8 in")),
    Sketcher.Constraint("DistanceX", 11, 2, 12, 2, Q("8 in")),
    Sketcher.Constraint("DistanceX", 16, 2, 0, 2, Q("8 in")),
    Sketcher.Constraint("DistanceY", 9, 2, 9, 1, Q("0.9378 in")),
    Sketcher.Constraint("DistanceY", -1, 1, 0, 2, Q("0.625 in")),
    Sketcher.Constraint("DistanceY", 0, 1, 0, 2, 23.657),
    Sketcher.Constraint("DistanceY", 4, 1, 4, 2, 18.224),
    Sketcher.Constraint("DistanceY", 12, 1, 12, 2, 22.0155),
    Sketcher.Constraint("DistanceY", 16, 1, 16, 2, 20.5708),
    Sketcher.Constraint("DistanceX", -1, 1, 0, 2, 969.4754),
])
pocket3 = body.newObject("PartDesign::Pocket", "Pocket002")
pocket3.Profile = sketch4
pocket3.Length = Q("0.05 in")

sketch5 = body.newObject("Sketcher::SketchObject", "Sketch004")
sketch5.AttachmentSupport = (doc.getObject("YZ_Plane"), [""])
sketch5.MapMode = "FlatFace"
sketch5.AttachmentOffset = App.Placement(App.Vector(0, 0, 3.5 * 25.4), App.Rotation())
sketch5.addGeometry([
    Part.LineSegment(App.Vector(149.4363, 0, 0), App.Vector(150.9603, 0, 0)),
    Part.LineSegment(App.Vector(150.9603, 0, 0), App.Vector(150.9603, 15.875, 0)),
    Part.LineSegment(App.Vector(150.9603, 15.875, 0), App.Vector(149.4363, 15.875, 0)),
    Part.LineSegment(App.Vector(149.4363, 15.875, 0), App.Vector(149.4363, 0, 0)),
    Part.LineSegment(App.Vector(352.6363, 0, 0), App.Vector(354.1603, 0, 0)),
    Part.LineSegment(App.Vector(354.1603, 0, 0), App.Vector(354.1603, 15.875, 0)),
    Part.LineSegment(App.Vector(354.1603, 15.875, 0), App.Vector(352.6363, 15.875, 0)),
    Part.LineSegment(App.Vector(352.6363, 15.875, 0), App.Vector(352.6363, 0, 0)),
    Part.LineSegment(App.Vector(555.8363, 0, 0), App.Vector(557.3603, 0, 0)),
    Part.LineSegment(App.Vector(557.3603, 0, 0), App.Vector(557.3603, 15.875, 0)),
    Part.LineSegment(App.Vector(557.3603, 15.875, 0), App.Vector(555.8363, 15.875, 0)),
    Part.LineSegment(App.Vector(555.8363, 15.875, 0), App.Vector(555.8363, 0, 0)),
    Part.LineSegment(App.Vector(759.0363, 0, 0), App.Vector(760.5603, 0, 0)),
    Part.LineSegment(App.Vector(760.5603, 0, 0), App.Vector(760.5603, 15.875, 0)),
    Part.LineSegment(App.Vector(760.5603, 15.875, 0), App.Vector(759.0363, 15.875, 0)),
    Part.LineSegment(App.Vector(759.0363, 15.875, 0), App.Vector(759.0363, 0, 0)),
    Part.LineSegment(App.Vector(962.2363, 0, 0), App.Vector(963.7603, 0, 0)),
    Part.LineSegment(App.Vector(963.7603, 0, 0), App.Vector(963.7603, 15.875, 0)),
    Part.LineSegment(App.Vector(963.7603, 15.875, 0), App.Vector(962.2363, 15.875, 0)),
    Part.LineSegment(App.Vector(962.2363, 15.875, 0), App.Vector(962.2363, 0, 0)),
], False)
sketch5.addConstraint([
    Sketcher.Constraint("Coincident", 0, 2, 1, 1),
    Sketcher.Constraint("Coincident", 1, 2, 2, 1),
    Sketcher.Constraint("Coincident", 2, 2, 3, 1),
    Sketcher.Constraint("Coincident", 3, 2, 0, 1),
    Sketcher.Constraint("Coincident", 4, 2, 5, 1),
    Sketcher.Constraint("Coincident", 5, 2, 6, 1),
    Sketcher.Constraint("Coincident", 6, 2, 7, 1),
    Sketcher.Constraint("Coincident", 7, 2, 4, 1),
    Sketcher.Constraint("Coincident", 8, 2, 9, 1),
    Sketcher.Constraint("Coincident", 9, 2, 10, 1),
    Sketcher.Constraint("Coincident", 10, 2, 11, 1),
    Sketcher.Constraint("Coincident", 11, 2, 8, 1),
    Sketcher.Constraint("Coincident", 12, 2, 13, 1),
    Sketcher.Constraint("Coincident", 13, 2, 14, 1),
    Sketcher.Constraint("Coincident", 14, 2, 15, 1),
    Sketcher.Constraint("Coincident", 15, 2, 12, 1),
    Sketcher.Constraint("Coincident", 16, 2, 17, 1),
    Sketcher.Constraint("Coincident", 17, 2, 18, 1),
    Sketcher.Constraint("Coincident", 18, 2, 19, 1),
    Sketcher.Constraint("Coincident", 19, 2, 16, 1),
    Sketcher.Constraint("Horizontal", 0),
    Sketcher.Constraint("Vertical", 1),
    Sketcher.Constraint("Horizontal", 2),
    Sketcher.Constraint("Vertical", 3),
    Sketcher.Constraint("Horizontal", 4),
    Sketcher.Constraint("Vertical", 5),
    Sketcher.Constraint("Horizontal", 6),
    Sketcher.Constraint("Vertical", 7),
    Sketcher.Constraint("Horizontal", 8),
    Sketcher.Constraint("Vertical", 9),
    Sketcher.Constraint("Horizontal", 10),
    Sketcher.Constraint("Vertical", 11),
    Sketcher.Constraint("Horizontal", 12),
    Sketcher.Constraint("Vertical", 13),
    Sketcher.Constraint("Horizontal", 14),
    Sketcher.Constraint("Vertical", 15),
    Sketcher.Constraint("Horizontal", 16),
    Sketcher.Constraint("Vertical", 17),
    Sketcher.Constraint("Horizontal", 18),
    Sketcher.Constraint("Vertical", 19),
    Sketcher.Constraint("PointOnObject", 0, 2, -1),
    Sketcher.Constraint("PointOnObject", 4, 2, -1),
    Sketcher.Constraint("PointOnObject", 8, 2, -1),
    Sketcher.Constraint("PointOnObject", 12, 2, -1),
    Sketcher.Constraint("PointOnObject", 16, 2, -1),
    Sketcher.Constraint("Horizontal", 2, 2, 5, 2),
    Sketcher.Constraint("Horizontal", 6, 2, 9, 2),
    Sketcher.Constraint("Horizontal", 10, 2, 13, 2),
    Sketcher.Constraint("Horizontal", 14, 2, 17, 2),
    Sketcher.Constraint("Equal", 2, 4),
    Sketcher.Constraint("Equal", 6, 8),
    Sketcher.Constraint("Equal", 10, 12),
    Sketcher.Constraint("Equal", 14, 16),
    Sketcher.Constraint("DistanceX", 0, 2, 4, 2, Q("8 in")),
    Sketcher.Constraint("DistanceX", 4, 2, 8, 2, Q("8 in")),
    Sketcher.Constraint("DistanceX", 8, 2, 12, 2, Q("8 in")),
    Sketcher.Constraint("DistanceX", 12, 2, 16, 2, Q("8 in")),
    Sketcher.Constraint("DistanceX", 0, 1, 0, 2, Q("0.06 in")),
    Sketcher.Constraint("DistanceY", 1, 1, 1, 2, Q("0.625 in")),
    Sketcher.Constraint("DistanceX", -1, 1, 0, 2, 150.9603),
])
pad2 = body.newObject("PartDesign::Pad", "Pad001")
pad2.Profile = sketch5
pad2.Length = Q("0.05 in")
pad2.Reversed = True

sketch6 = body.newObject("Sketcher::SketchObject", "Sketch005")
sketch6.AttachmentSupport = (doc.getObject("XY_Plane"), [""])
sketch6.MapMode = "FlatFace"
sketch6.AttachmentOffset = App.Placement(App.Vector(0, 0, 0.625 * 25.4), App.Rotation())
sketch6.addGeometry([
    Part.LineSegment(App.Vector(0, 1442.9398, 0), App.Vector(0, -7.1275, 0)),
    Part.LineSegment(App.Vector(0, -7.1275, 0), App.Vector(6.35, -7.1275, 0)),
    Part.LineSegment(App.Vector(6.35, -7.1275, 0), App.Vector(6.35, 1442.9398, 0)),
    Part.LineSegment(App.Vector(6.35, 1442.9398, 0), App.Vector(0, 1442.9398, 0)),
], False)
sketch6.addConstraint([
    Sketcher.Constraint("Coincident", 0, 2, 1, 1),
    Sketcher.Constraint("Coincident", 1, 2, 2, 1),
    Sketcher.Constraint("Coincident", 2, 2, 3, 1),
    Sketcher.Constraint("Coincident", 3, 2, 0, 1),
    Sketcher.Constraint("Vertical", 0),
    Sketcher.Constraint("Horizontal", 1),
    Sketcher.Constraint("Vertical", 2),
    Sketcher.Constraint("Horizontal", 3),
    Sketcher.Constraint("PointOnObject", 0, 2, -2),
    Sketcher.Constraint("DistanceX", 1, 1, 1, 2, Q("0.25 in")),
    Sketcher.Constraint("DistanceY", 0, 2, 0, 1, 1450.0673),
    Sketcher.Constraint("DistanceY", 0, 2, -1, 1, Q("0.2806 in")),
])
pocket4 = body.newObject("PartDesign::Pocket", "Pocket003")
pocket4.Profile = sketch6
pocket4.Type = "ThroughAll"

sketch7 = body.newObject("Sketcher::SketchObject", "Sketch006")
sketch7.AttachmentSupport = (doc.getObject("XZ_Plane"), [""])
sketch7.MapMode = "FlatFace"
sketch7.addGeometry([
    Part.LineSegment(App.Vector(31.75, 15.875, 0), App.Vector(6.35, 15.875, 0)),
    Part.LineSegment(App.Vector(6.35, 15.875, 0), App.Vector(6.35, 7.9375, 0)),
    Part.LineSegment(App.Vector(6.35, 7.9375, 0), App.Vector(31.75, 15.875, 0)),
    Part.LineSegment(App.Vector(31.75, 0, 0), App.Vector(6.35, 7.9375, 0)),
    Part.LineSegment(App.Vector(6.35, 7.9375, 0), App.Vector(6.35, 0, 0)),
    Part.LineSegment(App.Vector(6.35, 0, 0), App.Vector(31.75, 0, 0)),
], False)
sketch7.addConstraint([
    Sketcher.Constraint("Coincident", 0, 2, 1, 1),
    Sketcher.Constraint("Coincident", 1, 2, 2, 1),
    Sketcher.Constraint("Coincident", 2, 2, 0, 1),
    Sketcher.Constraint("Coincident", 3, 2, 4, 1),
    Sketcher.Constraint("Coincident", 4, 2, 5, 1),
    Sketcher.Constraint("Coincident", 5, 2, 3, 1),
    Sketcher.Constraint("Horizontal", 0),
    Sketcher.Constraint("Vertical", 1),
    Sketcher.Constraint("Vertical", 4),
    Sketcher.Constraint("Horizontal", 5),
    Sketcher.Constraint("Coincident", 3, 2, 1, 2),
    Sketcher.Constraint("PointOnObject", 4, 2, -1),
    Sketcher.Constraint("Vertical", 2, 2, 5, 2),
    Sketcher.Constraint("Equal", 1, 4),
    Sketcher.Constraint("DistanceX", 0, 2, 0, 1, Q("1 in")),
    Sketcher.Constraint("DistanceY", 1, 2, 1, 1, Q("0.3125 in")),
    Sketcher.Constraint("DistanceX", -1, 1, 0, 2, Q("0.25 in")),
])
pocket5 = body.newObject("PartDesign::Pocket", "Pocket004")
pocket5.Profile = sketch7
pocket5.Type = "ThroughAll"

sketch8 = body.newObject("Sketcher::SketchObject", "Sketch007")
sketch8.AttachmentSupport = (doc.getObject("XZ_Plane"), [""])
sketch8.MapMode = "FlatFace"
sketch8.addGeometry([
    Part.LineSegment(App.Vector(6.35, 0, 0), App.Vector(88.9, 0, 0)),
    Part.LineSegment(App.Vector(88.9, 0, 0), App.Vector(88.9, 15.875, 0)),
    Part.LineSegment(App.Vector(88.9, 15.875, 0), App.Vector(6.35, 15.875, 0)),
    Part.LineSegment(App.Vector(6.35, 15.875, 0), App.Vector(6.35, 0, 0)),
], False)
sketch8.addConstraint([
    Sketcher.Constraint("Coincident", 0, 2, 1, 1),
    Sketcher.Constraint("Coincident", 1, 2, 2, 1),
    Sketcher.Constraint("Coincident", 2, 2, 3, 1),
    Sketcher.Constraint("Coincident", 3, 2, 0, 1),
    Sketcher.Constraint("Horizontal", 0),
    Sketcher.Constraint("Vertical", 1),
    Sketcher.Constraint("Horizontal", 2),
    Sketcher.Constraint("Vertical", 3),
    Sketcher.Constraint("PointOnObject", 0, 2, -1),
    Sketcher.Constraint("DistanceX", 0, 1, 0, 2, Q("3.25 in")),
    Sketcher.Constraint("DistanceX", -1, 1, 0, 2, Q("3.5 in")),
    Sketcher.Constraint("DistanceY", 1, 1, 1, 2, Q("0.625 in")),
])
pad3 = body.newObject("PartDesign::Pad", "Pad002")
pad3.Profile = sketch8
pad3.Length = Q("7.25 in")

sketch9 = body.newObject("Sketcher::SketchObject", "Sketch008")
sketch9.AttachmentSupport = (doc.getObject("XY_Plane"), [""])
sketch9.MapMode = "FlatFace"
sketch9.AttachmentOffset = App.Placement(App.Vector(0, 0, 0.625 * 25.4), App.Rotation())
sketch9.addGeometry([
    Part.LineSegment(App.Vector(52.07, -91.44, 0), App.Vector(6.35, -91.44, 0)),
    Part.LineSegment(App.Vector(6.35, -91.44, 0), App.Vector(6.35, -184.15, 0)),
    Part.LineSegment(App.Vector(6.35, -184.15, 0), App.Vector(88.9, -184.15, 0)),
    Part.LineSegment(App.Vector(88.9, -184.15, 0), App.Vector(88.9, -182.88, 0)),
    Part.LineSegment(App.Vector(88.9, -182.88, 0), App.Vector(52.07, -182.88, 0)),
    Part.LineSegment(App.Vector(52.07, -182.88, 0), App.Vector(52.07, -91.44, 0)),
], False)
sketch9.addConstraint([
    Sketcher.Constraint("Coincident", 0, 2, 1, 1),
    Sketcher.Constraint("Coincident", 1, 2, 2, 1),
    Sketcher.Constraint("Coincident", 2, 2, 3, 1),
    Sketcher.Constraint("Coincident", 3, 2, 4, 1),
    Sketcher.Constraint("Coincident", 4, 2, 5, 1),
    Sketcher.Constraint("Coincident", 5, 2, 0, 1),
    Sketcher.Constraint("Horizontal", 0),
    Sketcher.Constraint("Vertical", 1),
    Sketcher.Constraint("Horizontal", 2),
    Sketcher.Constraint("Vertical", 3),
    Sketcher.Constraint("Horizontal", 4),
    Sketcher.Constraint("Vertical", 5),
    Sketcher.Constraint("DistanceX", 0, 2, 0, 1, Q("1.8 in")),
    Sketcher.Constraint("DistanceY", 5, 1, 5, 2, Q("3.6 in")),
    Sketcher.Constraint("DistanceX", 4, 2, 4, 1, Q("1.45 in")),
    Sketcher.Constraint("DistanceY", 0, 2, -1, 1, Q("3.6 in")),
    Sketcher.Constraint("DistanceY", 1, 2, 1, 1, Q("3.65 in")),
    Sketcher.Constraint("DistanceX", -1, 1, 2, 2, Q("3.5 in")),
])
pocket6 = body.newObject("PartDesign::Pocket", "Pocket005")
pocket6.Profile = sketch9
pocket6.Length = Q("7.25 in")

sketch10 = body.newObject("Sketcher::SketchObject", "Sketch009")
sketch10.AttachmentSupport = (doc.getObject("XY_Plane"), [""])
sketch10.MapMode = "FlatFace"
sketch10.AttachmentOffset = App.Placement(App.Vector(0, 0, 0.625 * 25.4), App.Rotation())
sketch10.addGeometry([
    Part.Circle(App.Vector(26.9875, -22.86, 0), App.Vector(0, 0, 1), 8.255),
    Part.Circle(App.Vector(70.485, -22.86, 0), App.Vector(0, 0, 1), 8.255),
    Part.Circle(App.Vector(70.485, -68.58, 0), App.Vector(0, 0, 1), 8.255),
    Part.Circle(App.Vector(26.9875, -68.58, 0), App.Vector(0, 0, 1), 8.255),
    Part.Circle(App.Vector(70.485, -114.3, 0), App.Vector(0, 0, 1), 8.255),
    Part.Circle(App.Vector(70.485, -160.02, 0), App.Vector(0, 0, 1), 8.255),
], False)
sketch10.addConstraint([
    Sketcher.Constraint("Equal", 0, 1),
    Sketcher.Constraint("Equal", 1, 2),
    Sketcher.Constraint("Equal", 2, 3),
    Sketcher.Constraint("Equal", 3, 4),
    Sketcher.Constraint("Equal", 4, 5),
    Sketcher.Constraint("Horizontal", 0, 3, 1, 3),
    Sketcher.Constraint("Horizontal", 2, 3, 3, 3),
    Sketcher.Constraint("Vertical", 1, 3, 2, 3),
    Sketcher.Constraint("Vertical", 0, 3, 3, 3),
    Sketcher.Constraint("Vertical", 2, 3, 4, 3),
    Sketcher.Constraint("Vertical", 4, 3, 5, 3),
    Sketcher.Constraint("Diameter", 0, Q("0.65 in")),
    Sketcher.Constraint("DistanceY", 0, 3, -1, 1, Q("0.9 in")),
    Sketcher.Constraint("DistanceY", 2, 3, -1, 1, Q("2.7 in")),
    Sketcher.Constraint("DistanceY", 4, 3, -1, 1, Q("4.5 in")),
    Sketcher.Constraint("DistanceY", 5, 3, -1, 1, Q("6.3 in")),
    Sketcher.Constraint("DistanceX", -1, 1, 0, 3, Q("1.0625 in")),
    Sketcher.Constraint("DistanceX", -1, 1, 1, 3, Q("2.775 in")),
])
pocket7 = body.newObject("PartDesign::Pocket", "Pocket006")
pocket7.Profile = sketch10
pocket7.Length = Q("1 in")

doc.recompute()
